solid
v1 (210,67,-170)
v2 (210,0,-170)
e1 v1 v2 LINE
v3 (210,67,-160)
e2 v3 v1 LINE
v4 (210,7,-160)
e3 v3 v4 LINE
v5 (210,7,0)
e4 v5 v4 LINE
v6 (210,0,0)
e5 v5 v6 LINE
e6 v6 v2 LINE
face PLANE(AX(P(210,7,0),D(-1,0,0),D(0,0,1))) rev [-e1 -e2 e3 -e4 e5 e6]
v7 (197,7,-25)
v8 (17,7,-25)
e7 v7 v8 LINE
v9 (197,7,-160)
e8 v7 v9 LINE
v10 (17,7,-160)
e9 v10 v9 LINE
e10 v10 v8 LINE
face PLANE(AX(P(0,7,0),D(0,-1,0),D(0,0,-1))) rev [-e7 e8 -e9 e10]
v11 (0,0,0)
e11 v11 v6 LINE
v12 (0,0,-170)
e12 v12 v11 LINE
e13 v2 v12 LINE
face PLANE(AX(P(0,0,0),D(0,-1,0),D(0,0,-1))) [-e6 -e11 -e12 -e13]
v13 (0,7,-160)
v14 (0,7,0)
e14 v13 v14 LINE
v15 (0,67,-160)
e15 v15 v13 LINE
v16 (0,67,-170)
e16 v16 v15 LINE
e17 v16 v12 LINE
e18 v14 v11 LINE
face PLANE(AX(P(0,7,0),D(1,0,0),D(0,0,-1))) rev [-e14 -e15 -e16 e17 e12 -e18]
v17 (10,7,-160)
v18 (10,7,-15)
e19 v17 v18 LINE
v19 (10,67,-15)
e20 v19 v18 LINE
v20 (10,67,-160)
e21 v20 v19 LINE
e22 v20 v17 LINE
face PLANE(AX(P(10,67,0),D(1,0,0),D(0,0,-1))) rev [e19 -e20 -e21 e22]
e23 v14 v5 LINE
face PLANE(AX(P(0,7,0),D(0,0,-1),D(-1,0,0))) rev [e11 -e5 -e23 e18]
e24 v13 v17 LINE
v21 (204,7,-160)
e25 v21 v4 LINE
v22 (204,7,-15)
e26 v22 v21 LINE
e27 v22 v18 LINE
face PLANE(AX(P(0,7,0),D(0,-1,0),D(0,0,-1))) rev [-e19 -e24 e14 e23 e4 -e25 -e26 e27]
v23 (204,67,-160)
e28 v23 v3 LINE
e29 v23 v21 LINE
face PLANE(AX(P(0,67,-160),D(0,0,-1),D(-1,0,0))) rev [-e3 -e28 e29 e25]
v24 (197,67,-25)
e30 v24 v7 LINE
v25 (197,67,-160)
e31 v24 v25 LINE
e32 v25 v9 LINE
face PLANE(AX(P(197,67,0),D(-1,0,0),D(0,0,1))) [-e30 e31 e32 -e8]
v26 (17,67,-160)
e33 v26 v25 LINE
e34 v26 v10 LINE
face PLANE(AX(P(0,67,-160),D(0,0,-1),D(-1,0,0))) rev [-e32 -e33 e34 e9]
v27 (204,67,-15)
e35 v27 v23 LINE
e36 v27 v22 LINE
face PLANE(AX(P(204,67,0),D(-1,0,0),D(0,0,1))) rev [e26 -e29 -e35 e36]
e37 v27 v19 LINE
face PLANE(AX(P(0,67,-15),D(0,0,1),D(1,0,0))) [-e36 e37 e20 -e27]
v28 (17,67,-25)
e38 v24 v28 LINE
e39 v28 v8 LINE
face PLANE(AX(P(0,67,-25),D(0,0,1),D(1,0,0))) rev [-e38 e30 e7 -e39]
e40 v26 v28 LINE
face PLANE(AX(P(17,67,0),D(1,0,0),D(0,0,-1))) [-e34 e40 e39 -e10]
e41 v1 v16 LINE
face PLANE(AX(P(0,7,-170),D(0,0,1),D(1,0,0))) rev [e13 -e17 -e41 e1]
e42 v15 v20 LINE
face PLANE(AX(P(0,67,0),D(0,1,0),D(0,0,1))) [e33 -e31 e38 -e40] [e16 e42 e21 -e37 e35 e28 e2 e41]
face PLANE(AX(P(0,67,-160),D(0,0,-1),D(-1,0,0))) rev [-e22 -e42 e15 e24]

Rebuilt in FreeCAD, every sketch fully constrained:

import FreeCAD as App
import Part
import Sketcher
Q = App.Units.Quantity

doc = App.newDocument("Part")
params = doc.addObject("Spreadsheet::Sheet", "Params")
for row, (alias, value) in enumerate([
    ("sketch1_width", "210 mm"),
    ("sketch1_height", "170 mm"),
    ("pad1_length", "7 mm"),
    ("sketch2_width", "210 mm"),
    ("sketch2_width2", "10 mm"),
    ("sketch2_width3", "194 mm"),
    ("sketch2_width4", "180 mm"),
    ("sketch2_height", "145 mm"),
    ("pad2_length", "60 mm"),
], start=1):
    params.set(f"A{row}", alias)
    params.set(f"B{row}", "=" + value)
    params.setAlias(f"B{row}", alias)

body = doc.addObject("PartDesign::Body", "Body")

# Sketch on XZ plane
sketch1 = body.newObject("Sketcher::SketchObject", "Sketch")
sketch1.AttachmentSupport = (doc.getObject("XZ_Plane"), [""])
sketch1.MapMode = "FlatFace"
sketch1.addGeometry(Part.LineSegment(App.Vector(0, -170, 0), App.Vector(0, 0, 0)), False)
sketch1.addGeometry(Part.LineSegment(App.Vector(0, 0, 0), App.Vector(210, 0, 0)), False)
sketch1.addGeometry(Part.LineSegment(App.Vector(210, 0, 0), App.Vector(210, -170, 0)), False)
sketch1.addGeometry(Part.LineSegment(App.Vector(210, -170, 0), App.Vector(0, -170, 0)), False)
sketch1.addConstraint(Sketcher.Constraint("Coincident", 0, 2, 1, 1))
sketch1.addConstraint(Sketcher.Constraint("Coincident", 1, 2, 2, 1))
sketch1.addConstraint(Sketcher.Constraint("Coincident", 2, 2, 3, 1))
sketch1.addConstraint(Sketcher.Constraint("Coincident", 3, 2, 0, 1))
sketch1.addConstraint(Sketcher.Constraint("Vertical", 0))
sketch1.addConstraint(Sketcher.Constraint("Horizontal", 1))
sketch1.addConstraint(Sketcher.Constraint("Vertical", 2))
sketch1.addConstraint(Sketcher.Constraint("Horizontal", 3))
sketch1.addConstraint(Sketcher.Constraint("Coincident", 0, 2, -1, 1))
sketch1.addConstraint(Sketcher.Constraint("DistanceX", 1, 1, 1, 2, Q("210 mm")))
sketch1.addConstraint(Sketcher.Constraint("DistanceY", 0, 1, 0, 2, Q("170 mm")))
sketch1.setExpression("Constraints[9]", "Params.sketch1_width")
sketch1.setExpression("Constraints[10]", "Params.sketch1_height")
pad1 = body.newObject("PartDesign::Pad", "Pad")
pad1.Profile = sketch1
pad1.setExpression("Length", "Params.pad1_length")
pad1.Reversed = True

# Sketch on XZ plane
sketch2 = body.newObject("Sketcher::SketchObject", "Sketch001")
sketch2.AttachmentSupport = (doc.getObject("XZ_Plane"), [""])
sketch2.MapMode = "FlatFace"
sketch2.AttachmentOffset = App.Placement(App.Vector(0, 0, -7), App.Rotation())
sketch2.addGeometry(Part.LineSegment(App.Vector(210, -170, 0), App.Vector(0, -170, 0)), False)
sketch2.addGeometry(Part.LineSegment(App.Vector(0, -170, 0), App.Vector(0, -160, 0)), False)
sketch2.addGeometry(Part.LineSegment(App.Vector(0, -160, 0), App.Vector(10, -160, 0)), False)
sketch2.addGeometry(Part.LineSegment(App.Vector(10, -160, 0), App.Vector(10, -15, 0)), False)
sketch2.addGeometry(Part.LineSegment(App.Vector(10, -15, 0), App.Vector(204, -15, 0)), False)
sketch2.addGeometry(Part.LineSegment(App.Vector(204, -15, 0), App.Vector(204, -160, 0)), False)
sketch2.addGeometry(Part.LineSegment(App.Vector(204, -160, 0), App.Vector(210, -160, 0)), False)
sketch2.addGeometry(Part.LineSegment(App.Vector(210, -160, 0), App.Vector(210, -170, 0)), False)
sketch2.addGeometry(Part.LineSegment(App.Vector(197, -25, 0), App.Vector(17, -25, 0)), False)
sketch2.addGeometry(Part.LineSegment(App.Vector(17, -25, 0), App.Vector(17, -160, 0)), False)
sketch2.addGeometry(Part.LineSegment(App.Vector(17, -160, 0), App.Vector(197, -160, 0)), False)
sketch2.addGeometry(Part.LineSegment(App.Vector(197, -160, 0), App.Vector(197, -25, 0)), False)
sketch2.addConstraint(Sketcher.Constraint("Coincident", 0, 2, 1, 1))
sketch2.addConstraint(Sketcher.Constraint("Coincident", 1, 2, 2, 1))
sketch2.addConstraint(Sketcher.Constraint("Coincident", 2, 2, 3, 1))
sketch2.addConstraint(Sketcher.Constraint("Coincident", 3, 2, 4, 1))
sketch2.addConstraint(Sketcher.Constraint("Coincident", 4, 2, 5, 1))
sketch2.addConstraint(Sketcher.Constraint("Coincident", 5, 2, 6, 1))
sketch2.addConstraint(Sketcher.Constraint("Coincident", 6, 2, 7, 1))
sketch2.addConstraint(Sketcher.Constraint("Coincident", 7, 2, 0, 1))
sketch2.addConstraint(Sketcher.Constraint("Coincident", 8, 2, 9, 1))
sketch2.addConstraint(Sketcher.Constraint("Coincident", 9, 2, 10, 1))
sketch2.addConstraint(Sketcher.Constraint("Coincident", 10, 2, 11, 1))
sketch2.addConstraint(Sketcher.Constraint("Coincident", 11, 2, 8, 1))
sketch2.addConstraint(Sketcher.Constraint("Horizontal", 0))
sketch2.addConstraint(Sketcher.Constraint("Vertical", 1))
sketch2.addConstraint(Sketcher.Constraint("Horizontal", 2))
sketch2.addConstraint(Sketcher.Constraint("Vertical", 3))
sketch2.addConstraint(Sketcher.Constraint("Horizontal", 4))
sketch2.addConstraint(Sketcher.Constraint("Vertical", 5))
sketch2.addConstraint(Sketcher.Constraint("Horizontal", 6))
sketch2.addConstraint(Sketcher.Constraint("Vertical", 7))
sketch2.addConstraint(Sketcher.Constraint("Horizontal", 8))
sketch2.addConstraint(Sketcher.Constraint("Vertical", 9))
sketch2.addConstraint(Sketcher.Constraint("Horizontal", 10))
sketch2.addConstraint(Sketcher.Constraint("Vertical", 11))
sketch2.addConstraint(Sketcher.Constraint("PointOnObject", 0, 2, -2))
sketch2.addConstraint(Sketcher.Constraint("Horizontal", 2, 2, 5, 2))
sketch2.addConstraint(Sketcher.Constraint("Horizontal", 6, 2, 9, 2))
sketch2.addConstraint(Sketcher.Constraint("Equal", 2, 1))
sketch2.addConstraint(Sketcher.Constraint("DistanceX", 0, 2, 0, 1, Q("210 mm")))
sketch2.addConstraint(Sketcher.Constraint("DistanceX", 2, 1, 2, 2, Q("10 mm")))
sketch2.addConstraint(Sketcher.Constraint("DistanceX", 4, 1, 4, 2, Q("194 mm")))
sketch2.addConstraint(Sketcher.Constraint("DistanceX", 8, 2, 8, 1, Q("180 mm")))
sketch2.addConstraint(Sketcher.Constraint("DistanceY", 3, 1, 3, 2, Q("145 mm")))
sketch2.addConstraint(Sketcher.Constraint("DistanceY", 9, 2, 9, 1, Q("135 mm")))
sketch2.addConstraint(Sketcher.Constraint("DistanceY", 0, 2, -1, 1, Q("170 mm")))
sketch2.addConstraint(Sketcher.Constraint("DistanceX", -1, 1, 8, 2, Q("17 mm")))
sketch2.setExpression("Constraints[28]", "Params.sketch2_width")
sketch2.setExpression("Constraints[29]", "Params.sketch2_width2")
sketch2.setExpression("Constraints[30]", "Params.sketch2_width3")
sketch2.setExpression("Constraints[31]", "Params.sketch2_width4")
sketch2.setExpression("Constraints[32]", "Params.sketch2_height")
pad2 = body.newObject("PartDesign::Pad", "Pad001")
pad2.Profile = sketch2
pad2.setExpression("Length", "Params.pad2_length")
pad2.Reversed = True

doc.recompute()
